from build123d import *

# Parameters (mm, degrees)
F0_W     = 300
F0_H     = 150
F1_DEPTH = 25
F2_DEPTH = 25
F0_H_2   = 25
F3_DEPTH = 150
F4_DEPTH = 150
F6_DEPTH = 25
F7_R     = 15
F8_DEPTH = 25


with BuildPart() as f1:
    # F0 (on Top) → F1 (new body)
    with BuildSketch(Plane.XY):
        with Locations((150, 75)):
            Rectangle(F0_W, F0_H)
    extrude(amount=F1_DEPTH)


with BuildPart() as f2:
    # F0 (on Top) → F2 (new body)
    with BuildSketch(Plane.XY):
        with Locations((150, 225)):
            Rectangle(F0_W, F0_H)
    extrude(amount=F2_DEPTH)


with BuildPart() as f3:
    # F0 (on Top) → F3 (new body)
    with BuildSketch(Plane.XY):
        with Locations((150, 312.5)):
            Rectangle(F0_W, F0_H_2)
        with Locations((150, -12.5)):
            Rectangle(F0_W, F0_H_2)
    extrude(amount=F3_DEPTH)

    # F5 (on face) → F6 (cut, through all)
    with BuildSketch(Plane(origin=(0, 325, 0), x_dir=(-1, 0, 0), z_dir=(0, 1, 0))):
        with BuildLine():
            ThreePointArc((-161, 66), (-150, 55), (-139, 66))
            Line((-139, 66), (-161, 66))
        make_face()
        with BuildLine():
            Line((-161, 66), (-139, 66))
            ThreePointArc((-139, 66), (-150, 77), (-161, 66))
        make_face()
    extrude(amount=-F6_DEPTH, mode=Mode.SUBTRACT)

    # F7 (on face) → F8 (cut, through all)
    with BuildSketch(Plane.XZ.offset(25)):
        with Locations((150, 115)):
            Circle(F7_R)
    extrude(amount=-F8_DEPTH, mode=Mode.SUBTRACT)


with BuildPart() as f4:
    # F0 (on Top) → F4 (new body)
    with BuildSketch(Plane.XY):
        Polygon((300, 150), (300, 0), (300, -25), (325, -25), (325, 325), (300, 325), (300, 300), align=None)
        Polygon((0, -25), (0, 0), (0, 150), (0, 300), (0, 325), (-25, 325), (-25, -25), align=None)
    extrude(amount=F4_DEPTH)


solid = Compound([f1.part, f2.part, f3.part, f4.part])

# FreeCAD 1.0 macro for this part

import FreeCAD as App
import Part
import Sketcher
Q = App.Units.Quantity

doc = App.newDocument("Part")
body = doc.addObject("PartDesign::Body", "Body")

# Sketch on XY plane
sketch1 = doc.addObject("Sketcher::SketchObject", "Sketch")
body.addObject(sketch1)
sketch1.AttachmentSupport = (doc.XY_Plane, [""])
sketch1.MapMode = "FlatFace"
sketch1.addGeometry([
    Part.LineSegment(App.Vector(0, 150, 0), App.Vector(0, 0, 0)),
    Part.LineSegment(App.Vector(0, 0, 0), App.Vector(300, 0, 0)),
    Part.LineSegment(App.Vector(300, 0, 0), App.Vector(300, 150, 0)),
    Part.LineSegment(App.Vector(300, 150, 0), App.Vector(0, 150, 0)),
], False)
sketch1.addConstraint([
    Sketcher.Constraint("Coincident", 0, 2, 1, 1),
    Sketcher.Constraint("Coincident", 1, 2, 2, 1),
    Sketcher.Constraint("Coincident", 2, 2, 3, 1),
    Sketcher.Constraint("Coincident", 3, 2, 0, 1),
    Sketcher.Constraint("Vertical", 0),
    Sketcher.Constraint("Horizontal", 1),
    Sketcher.Constraint("Vertical", 2),
    Sketcher.Constraint("Horizontal", 3),
    Sketcher.Constraint("Coincident", 0, 2, -1, 1),
    Sketcher.Constraint("DistanceX", 1, 1, 1, 2, Q("300 mm")),
    Sketcher.Constraint("DistanceY", 0, 2, 0, 1, Q("150 mm")),
])
pad1 = doc.addObject("PartDesign::Pad", "Pad")
body.addObject(pad1)
pad1.Profile = sketch1
pad1.Length = 25
body2 = doc.addObject("PartDesign::Body", "Body001")

# Sketch on XY plane
sketch2 = doc.addObject("Sketcher::SketchObject", "Sketch001")
body2.addObject(sketch2)
sketch2.AttachmentSupport = (doc.getObject("XY_Plane001"), [""])
sketch2.MapMode = "FlatFace"
sketch2.addGeometry([
    Part.LineSegment(App.Vector(0, 300, 0), App.Vector(0, 150, 0)),
    Part.LineSegment(App.Vector(0, 150, 0), App.Vector(300, 150, 0)),
    Part.LineSegment(App.Vector(300, 150, 0), App.Vector(300, 300, 0)),
    Part.LineSegment(App.Vector(300, 300, 0), App.Vector(0, 300, 0)),
], False)
sketch2.addConstraint([
    Sketcher.Constraint("Coincident", 0, 2, 1, 1),
    Sketcher.Constraint("Coincident", 1, 2, 2, 1),
    Sketcher.Constraint("Coincident", 2, 2, 3, 1),
    Sketcher.Constraint("Coincident", 3, 2, 0, 1),
    Sketcher.Constraint("Vertical", 0),
    Sketcher.Constraint("Horizontal", 1),
    Sketcher.Constraint("Vertical", 2),
    Sketcher.Constraint("Horizontal", 3),
    Sketcher.Constraint("PointOnObject", 0, 2, -2),
    Sketcher.Constraint("DistanceX", 1, 1, 1, 2, Q("300 mm")),
    Sketcher.Constraint("DistanceY", 0, 2, 0, 1, Q("150 mm")),
    Sketcher.Constraint("DistanceY", -1, 1, 0, 2, Q("150 mm")),
])
pad2 = doc.addObject("PartDesign::Pad", "Pad001")
body2.addObject(pad2)
pad2.Profile = sketch2
pad2.Length = 25
body3 = doc.addObject("PartDesign::Body", "Body002")
body3.AllowCompound = True

# Sketch on XY plane
sketch3 = doc.addObject("Sketcher::SketchObject", "Sketch002")
body3.addObject(sketch3)
sketch3.AttachmentSupport = (doc.getObject("XY_Plane002"), [""])
sketch3.MapMode = "FlatFace"
sketch3.addGeometry([
    Part.LineSegment(App.Vector(0, 325, 0), App.Vector(0, 300, 0)),  # 0
    Part.LineSegment(App.Vector(0, 300, 0), App.Vector(300, 300, 0)),  # 1
    Part.LineSegment(App.Vector(300, 300, 0), App.Vector(300, 325, 0)),  # 2
    Part.LineSegment(App.Vector(300, 325, 0), App.Vector(0, 325, 0)),  # 3
    Part.LineSegment(App.Vector(0, 0, 0), App.Vector(0, -25, 0)),  # 4
    Part.LineSegment(App.Vector(0, -25, 0), App.Vector(300, -25, 0)),  # 5
    Part.LineSegment(App.Vector(300, -25, 0), App.Vector(300, 0, 0)),  # 6
    Part.LineSegment(App.Vector(300, 0, 0), App.Vector(0, 0, 0)),  # 7
], False)
sketch3.addConstraint([
    Sketcher.Constraint("Coincident", 0, 2, 1, 1),
    Sketcher.Constraint("Coincident", 1, 2, 2, 1),
    Sketcher.Constraint("Coincident", 2, 2, 3, 1),
    Sketcher.Constraint("Coincident", 3, 2, 0, 1),
    Sketcher.Constraint("Coincident", 4, 2, 5, 1),
    Sketcher.Constraint("Coincident", 5, 2, 6, 1),
    Sketcher.Constraint("Coincident", 6, 2, 7, 1),
    Sketcher.Constraint("Coincident", 7, 2, 4, 1),
    Sketcher.Constraint("Vertical", 0),
    Sketcher.Constraint("Horizontal", 1),
    Sketcher.Constraint("Vertical", 2),
    Sketcher.Constraint("Horizontal", 3),
    Sketcher.Constraint("Vertical", 4),
    Sketcher.Constraint("Horizontal", 5),
    Sketcher.Constraint("Vertical", 6),
    Sketcher.Constraint("Horizontal", 7),
    Sketcher.Constraint("Coincident", 7, 2, -1, 1),
    Sketcher.Constraint("PointOnObject", 0, 2, -2),
    Sketcher.Constraint("Vertical", 2, 2, 5, 2),
    Sketcher.Constraint("Equal", 2, 4),
    Sketcher.Constraint("DistanceX", 1, 1, 1, 2, Q("300 mm")),
    Sketcher.Constraint("DistanceY", 0, 2, 0, 1, Q("25 mm")),
    Sketcher.Constraint("DistanceY", -1, 1, 0, 2, Q("300 mm")),
])
pad3 = doc.addObject("PartDesign::Pad", "Pad002")
body3.addObject(pad3)
pad3.Profile = sketch3
pad3.Length = 150

# Sketch on XZ plane
sketch4 = doc.addObject("Sketcher::SketchObject", "Sketch003")
body3.addObject(sketch4)
sketch4.AttachmentSupport = (doc.getObject("XZ_Plane002"), [""])
sketch4.MapMode = "FlatFace"
sketch4.AttachmentOffset = App.Placement(App.Vector(0, 0, -325), App.Rotation())
sketch4.addGeometry(Part.Circle(App.Vector(150, 66, 0), App.Vector(0, 0, 1), 11), False)
sketch4.addConstraint([
    Sketcher.Constraint("Diameter", 0, Q("22 mm")),
    Sketcher.Constraint("DistanceX", -1, 1, 0, 3, Q("150 mm")),
    Sketcher.Constraint("DistanceY", -1, 1, 0, 3, Q("66 mm")),
])
pocket1 = doc.addObject("PartDesign::Pocket", "Pocket")
body3.addObject(pocket1)
pocket1.Profile = sketch4
pocket1.Length = 25
pocket1.Reversed = True

# Sketch on XZ plane
sketch5 = doc.addObject("Sketcher::SketchObject", "Sketch004")
body3.addObject(sketch5)
sketch5.AttachmentSupport = (doc.getObject("XZ_Plane002"), [""])
sketch5.MapMode = "FlatFace"
sketch5.AttachmentOffset = App.Placement(App.Vector(0, 0, 25), App.Rotation())
sketch5.addGeometry(Part.Circle(App.Vector(150, 115, 0), App.Vector(0, 0, 1), 15), False)
sketch5.addConstraint([
    Sketcher.Constraint("Diameter", 0, Q("30 mm")),
    Sketcher.Constraint("DistanceX", -1, 1, 0, 3, Q("150 mm")),
    Sketcher.Constraint("DistanceY", -1, 1, 0, 3, Q("115 mm")),
])
pocket2 = doc.addObject("PartDesign::Pocket", "Pocket001")
body3.addObject(pocket2)
pocket2.Profile = sketch5
pocket2.Length = 25
body4 = doc.addObject("PartDesign::Body", "Body003")
body4.AllowCompound = True

# Sketch on XY plane
sketch6 = doc.addObject("Sketcher::SketchObject", "Sketch005")
body4.addObject(sketch6)
sketch6.AttachmentSupport = (doc.getObject("XY_Plane003"), [""])
sketch6.MapMode = "FlatFace"
sketch6.addGeometry([
    Part.LineSegment(App.Vector(300, -25, 0), App.Vector(325, -25, 0)),  # 0
    Part.LineSegment(App.Vector(325, -25, 0), App.Vector(325, 325, 0)),  # 1
    Part.LineSegment(App.Vector(325, 325, 0), App.Vector(300, 325, 0)),  # 2
    Part.LineSegment(App.Vector(300, 325, 0), App.Vector(300, -25, 0)),  # 3
    Part.LineSegment(App.Vector(0, -25, 0), App.Vector(0, 325, 0)),  # 4
    Part.LineSegment(App.Vector(0, 325, 0), App.Vector(-25, 325, 0)),  # 5
    Part.LineSegment(App.Vector(-25, 325, 0), App.Vector(-25, -25, 0)),  # 6
    Part.LineSegment(App.Vector(-25, -25, 0), App.Vector(0, -25, 0)),  # 7
], False)
sketch6.addConstraint([
    Sketcher.Constraint("Coincident", 0, 2, 1, 1),
    Sketcher.Constraint("Coincident", 1, 2, 2, 1),
    Sketcher.Constraint("Coincident", 2, 2, 3, 1),
    Sketcher.Constraint("Coincident", 3, 2, 0, 1),
    Sketcher.Constraint("Coincident", 4, 2, 5, 1),
    Sketcher.Constraint("Coincident", 5, 2, 6, 1),
    Sketcher.Constraint("Coincident", 6, 2, 7, 1),
    Sketcher.Constraint("Coincident", 7, 2, 4, 1),
    Sketcher.Constraint("Horizontal", 0),
    Sketcher.Constraint("Vertical", 1),
    Sketcher.Constraint("Horizontal", 2),
    Sketcher.Constraint("Vertical", 3),
    Sketcher.Constraint("Vertical", 4),
    Sketcher.Constraint("Horizontal", 5),
    Sketcher.Constraint("Vertical", 6),
    Sketcher.Constraint("Horizontal", 7),
    Sketcher.Constraint("PointOnObject", 4, 2, -2),
    Sketcher.Constraint("Horizontal", 2, 2, 4, 2),
    Sketcher.Constraint("Horizontal", 3, 2, 6, 2),
    Sketcher.Constraint("Equal", 2, 5),
    Sketcher.Constraint("DistanceX", 0, 1, 0, 2, Q("25 mm")),
    Sketcher.Constraint("DistanceY", 1, 1, 1, 2, Q("350 mm")),
    Sketcher.Constraint("DistanceX", -1, 1, 0, 2, Q("325 mm")),
    Sketcher.Constraint("DistanceY", 0, 2, -1, 1, Q("25 mm")),
])
pad4 = doc.addObject("PartDesign::Pad", "Pad003")
body4.addObject(pad4)
pad4.Profile = sketch6
pad4.Length = 150

doc.recompute()
